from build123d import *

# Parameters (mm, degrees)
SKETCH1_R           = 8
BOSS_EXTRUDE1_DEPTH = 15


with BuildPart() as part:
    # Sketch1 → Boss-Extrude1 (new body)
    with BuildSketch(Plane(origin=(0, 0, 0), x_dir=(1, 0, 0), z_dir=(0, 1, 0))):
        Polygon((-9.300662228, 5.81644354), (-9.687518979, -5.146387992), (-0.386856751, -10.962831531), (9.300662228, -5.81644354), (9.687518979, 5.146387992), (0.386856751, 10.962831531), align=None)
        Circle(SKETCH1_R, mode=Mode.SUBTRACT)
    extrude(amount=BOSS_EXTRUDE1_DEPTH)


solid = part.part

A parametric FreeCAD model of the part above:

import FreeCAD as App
import Part
import Sketcher
from FreeCAD import Vector
Q = App.Units.Quantity


def add_polygon(sketch, points):
    """Adds a closed chain of lines whose ends are joined by coincident constraints."""
    first, n = sketch.GeometryCount, len(points)
    for a, b in zip(points, points[1:] + points[:1]):
        sketch.addGeometry(Part.LineSegment(App.Vector(*a, 0), App.Vector(*b, 0)), False)
    for i in range(n):
        sketch.addConstraint(Sketcher.Constraint("Coincident", first + i, 2, first + (i + 1) % n, 1))

doc = App.newDocument("Part")
params = doc.addObject("Spreadsheet::Sheet", "Params")
for row, (alias, value) in enumerate([
    ("sketch1_diameter", "16 mm"),
    ("pad1_length", "15 mm"),
], start=1):
    params.set(f"A{row}", alias)
    params.set(f"B{row}", "=" + value)
    params.setAlias(f"B{row}", alias)

body = doc.addObject("PartDesign::Body", "Body")

# Sketch on XZ plane
sketch1 = doc.addObject("Sketcher::SketchObject", "Sketch")
body.addObject(sketch1)
sketch1.AttachmentSupport = (doc.XZ_Plane, [""])
sketch1.MapMode = "FlatFace"
add_polygon(sketch1, [(-9.300662, -5.816444), (-9.687519, 5.146388), (-0.386857, 10.962832), (9.300662, 5.816444), (9.687519, -5.146388), (0.386857, -10.962832)])  # lines 0-5
sketch1.addGeometry(Part.Circle(Vector(0, 0, 0), Vector(0, 0, 1), 8), False)  # 6
sketch1.addConstraint(Sketcher.Constraint("Coincident", 6, 3, -1, 1))
sketch1.addConstraint(Sketcher.Constraint("Symmetric", 0, 2, 3, 2, -1, 1))
sketch1.addConstraint(Sketcher.Constraint("Symmetric", 1, 2, 4, 2, -1, 1))
sketch1.addConstraint(Sketcher.Constraint("Symmetric", 2, 2, 5, 2, -1, 1))
sketch1.addConstraint(Sketcher.Constraint("Equal", 0, 1))
sketch1.addConstraint(Sketcher.Constraint("Equal", 1, 2))
sketch1.addConstraint(Sketcher.Constraint("Diameter", 6, Q("16 mm")))
sketch1.addConstraint(Sketcher.Constraint("DistanceX", 0, 2, -1, 1, Q("9.687519 mm")))
sketch1.addConstraint(Sketcher.Constraint("DistanceY", -1, 1, 1, 2, Q("10.962832 mm")))
sketch1.addConstraint(Sketcher.Constraint("DistanceX", 1, 2, 2, 2, Q("9.687519 mm")))
sketch1.addConstraint(Sketcher.Constraint("DistanceX", 0, 2, 2, 2, Q("18.988181 mm")))
sketch1.setExpression("Constraints[12]", "Params.sketch1_diameter")
pad1 = doc.addObject("PartDesign::Pad", "Pad")
body.addObject(pad1)
pad1.Profile = sketch1
pad1.setExpression("Length", "Params.pad1_length")
pad1.Reversed = True

doc.recompute()
